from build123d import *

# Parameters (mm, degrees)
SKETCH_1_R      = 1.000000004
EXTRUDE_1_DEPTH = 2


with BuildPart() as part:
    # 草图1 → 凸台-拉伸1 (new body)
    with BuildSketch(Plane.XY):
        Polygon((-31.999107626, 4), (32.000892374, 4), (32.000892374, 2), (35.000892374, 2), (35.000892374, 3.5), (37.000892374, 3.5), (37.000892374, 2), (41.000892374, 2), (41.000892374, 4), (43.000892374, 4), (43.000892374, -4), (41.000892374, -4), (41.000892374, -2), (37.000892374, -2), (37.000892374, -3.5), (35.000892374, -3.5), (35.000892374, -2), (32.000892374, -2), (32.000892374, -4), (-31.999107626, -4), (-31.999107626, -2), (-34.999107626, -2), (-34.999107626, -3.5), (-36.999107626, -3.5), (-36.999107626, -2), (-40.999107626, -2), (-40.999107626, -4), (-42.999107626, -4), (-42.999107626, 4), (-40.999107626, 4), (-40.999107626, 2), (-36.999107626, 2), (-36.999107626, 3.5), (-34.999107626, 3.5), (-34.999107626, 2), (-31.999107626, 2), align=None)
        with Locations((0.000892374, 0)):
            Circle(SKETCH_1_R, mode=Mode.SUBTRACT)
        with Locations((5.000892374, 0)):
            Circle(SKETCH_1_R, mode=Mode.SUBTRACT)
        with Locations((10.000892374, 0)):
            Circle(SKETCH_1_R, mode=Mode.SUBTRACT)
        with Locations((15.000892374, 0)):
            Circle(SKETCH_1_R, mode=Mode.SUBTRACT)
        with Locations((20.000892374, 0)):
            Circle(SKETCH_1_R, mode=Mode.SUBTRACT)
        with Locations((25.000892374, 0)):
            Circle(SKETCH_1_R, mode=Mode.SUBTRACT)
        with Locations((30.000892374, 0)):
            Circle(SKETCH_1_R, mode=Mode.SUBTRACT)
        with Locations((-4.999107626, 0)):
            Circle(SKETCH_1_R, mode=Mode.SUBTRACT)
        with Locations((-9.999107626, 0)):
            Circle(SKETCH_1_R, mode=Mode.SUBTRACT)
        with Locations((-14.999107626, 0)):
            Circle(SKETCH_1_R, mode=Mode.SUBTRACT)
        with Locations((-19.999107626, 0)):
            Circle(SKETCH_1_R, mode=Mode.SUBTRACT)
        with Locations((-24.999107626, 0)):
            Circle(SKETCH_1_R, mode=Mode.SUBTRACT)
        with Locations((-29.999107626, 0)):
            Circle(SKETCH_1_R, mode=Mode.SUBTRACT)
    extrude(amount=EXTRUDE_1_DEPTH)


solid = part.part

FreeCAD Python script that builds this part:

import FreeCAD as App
import Part
import Sketcher

V = App.Vector

doc = App.newDocument("Part")
body = doc.addObject("PartDesign::Body", "Body")

# Sketch on XY plane
sketch1 = doc.addObject("Sketcher::SketchObject", "Sketch")
body.addObject(sketch1)
sketch1.AttachmentSupport = (doc.XY_Plane, [""])
sketch1.MapMode = "FlatFace"
sketch1.addGeometry([
    Part.LineSegment(V(32.000892, 4, 0), V(-31.999108, 4, 0)),  # 0
    Part.LineSegment(V(-31.999108, 4, 0), V(-31.999108, 2, 0)),  # 1
    Part.LineSegment(V(-31.999108, 2, 0), V(-34.999108, 2, 0)),  # 2
    Part.LineSegment(V(-34.999108, 2, 0), V(-34.999108, 3.5, 0)),  # 3
    Part.LineSegment(V(-34.999108, 3.5, 0), V(-36.999108, 3.5, 0)),  # 4
    Part.LineSegment(V(-36.999108, 3.5, 0), V(-36.999108, 2, 0)),  # 5
    Part.LineSegment(V(-36.999108, 2, 0), V(-40.999108, 2, 0)),  # 6
    Part.LineSegment(V(-40.999108, 2, 0), V(-40.999108, 4, 0)),  # 7
    Part.LineSegment(V(-40.999108, 4, 0), V(-42.999108, 4, 0)),  # 8
    Part.LineSegment(V(-42.999108, 4, 0), V(-42.999108, -4, 0)),  # 9
    Part.LineSegment(V(-42.999108, -4, 0), V(-40.999108, -4, 0)),  # 10
    Part.LineSegment(V(-40.999108, -4, 0), V(-40.999108, -2, 0)),  # 11
    Part.LineSegment(V(-40.999108, -2, 0), V(-36.999108, -2, 0)),  # 12
    Part.LineSegment(V(-36.999108, -2, 0), V(-36.999108, -3.5, 0)),  # 13
    Part.LineSegment(V(-36.999108, -3.5, 0), V(-34.999108, -3.5, 0)),  # 14
    Part.LineSegment(V(-34.999108, -3.5, 0), V(-34.999108, -2, 0)),  # 15
    Part.LineSegment(V(-34.999108, -2, 0), V(-31.999108, -2, 0)),  # 16
    Part.LineSegment(V(-31.999108, -2, 0), V(-31.999108, -4, 0)),  # 17
    Part.LineSegment(V(-31.999108, -4, 0), V(32.000892, -4, 0)),  # 18
    Part.LineSegment(V(32.000892, -4, 0), V(32.000892, -2, 0)),  # 19
    Part.LineSegment(V(32.000892, -2, 0), V(35.000892, -2, 0)),  # 20
    Part.LineSegment(V(35.000892, -2, 0), V(35.000892, -3.5, 0)),  # 21
    Part.LineSegment(V(35.000892, -3.5, 0), V(37.000892, -3.5, 0)),  # 22
    Part.LineSegment(V(37.000892, -3.5, 0), V(37.000892, -2, 0)),  # 23
    Part.LineSegment(V(37.000892, -2, 0), V(41.000892, -2, 0)),  # 24
    Part.LineSegment(V(41.000892, -2, 0), V(41.000892, -4, 0)),  # 25
    Part.LineSegment(V(41.000892, -4, 0), V(43.000892, -4, 0)),  # 26
    Part.LineSegment(V(43.000892, -4, 0), V(43.000892, 4, 0)),  # 27
    Part.LineSegment(V(43.000892, 4, 0), V(41.000892, 4, 0)),  # 28
    Part.LineSegment(V(41.000892, 4, 0), V(41.000892, 2, 0)),  # 29
    Part.LineSegment(V(41.000892, 2, 0), V(37.000892, 2, 0)),  # 30
    Part.LineSegment(V(37.000892, 2, 0), V(37.000892, 3.5, 0)),  # 31
    Part.LineSegment(V(37.000892, 3.5, 0), V(35.000892, 3.5, 0)),  # 32
    Part.LineSegment(V(35.000892, 3.5, 0), V(35.000892, 2, 0)),  # 33
    Part.LineSegment(V(35.000892, 2, 0), V(32.000892, 2, 0)),  # 34
    Part.LineSegment(V(32.000892, 2, 0), V(32.000892, 4, 0)),  # 35
    Part.Circle(V(30.000892, 0, 0), V(0, 0, 1), 1),  # 36
    Part.Circle(V(25.000892, 0, 0), V(0, 0, 1), 1),  # 37
    Part.Circle(V(20.000892, 0, 0), V(0, 0, 1), 1),  # 38
    Part.Circle(V(15.000892, 0, 0), V(0, 0, 1), 1),  # 39
    Part.Circle(V(10.000892, 0, 0), V(0, 0, 1), 1),  # 40
    Part.Circle(V(5.000892, 0, 0), V(0, 0, 1), 1),  # 41
    Part.Circle(V(0.000892, 0, 0), V(0, 0, 1), 1),  # 42
    Part.Circle(V(-4.999108, 0, 0), V(0, 0, 1), 1),  # 43
    Part.Circle(V(-9.999108, 0, 0), V(0, 0, 1), 1),  # 44
    Part.Circle(V(-14.999108, 0, 0), V(0, 0, 1), 1),  # 45
    Part.Circle(V(-19.999108, 0, 0), V(0, 0, 1), 1),  # 46
    Part.Circle(V(-24.999108, 0, 0), V(0, 0, 1), 1),  # 47
    Part.Circle(V(-29.999108, 0, 0), V(0, 0, 1), 1),  # 48
], False)
sketch1.addConstraint([
    Sketcher.Constraint("Coincident", 0, 2, 1, 1),
    Sketcher.Constraint("Coincident", 1, 2, 2, 1),
    Sketcher.Constraint("Coincident", 2, 2, 3, 1),
    Sketcher.Constraint("Coincident", 3, 2, 4, 1),
    Sketcher.Constraint("Coincident", 4, 2, 5, 1),
    Sketcher.Constraint("Coincident", 5, 2, 6, 1),
    Sketcher.Constraint("Coincident", 6, 2, 7, 1),
    Sketcher.Constraint("Coincident", 7, 2, 8, 1),
    Sketcher.Constraint("Coincident", 8, 2, 9, 1),
    Sketcher.Constraint("Coincident", 9, 2, 10, 1),
    Sketcher.Constraint("Coincident", 10, 2, 11, 1),
    Sketcher.Constraint("Coincident", 11, 2, 12, 1),
    Sketcher.Constraint("Coincident", 12, 2, 13, 1),
    Sketcher.Constraint("Coincident", 13, 2, 14, 1),
    Sketcher.Constraint("Coincident", 14, 2, 15, 1),
    Sketcher.Constraint("Coincident", 15, 2, 16, 1),
    Sketcher.Constraint("Coincident", 16, 2, 17, 1),
    Sketcher.Constraint("Coincident", 17, 2, 18, 1),
    Sketcher.Constraint("Coincident", 18, 2, 19, 1),
    Sketcher.Constraint("Coincident", 19, 2, 20, 1),
    Sketcher.Constraint("Coincident", 20, 2, 21, 1),
    Sketcher.Constraint("Coincident", 21, 2, 22, 1),
    Sketcher.Constraint("Coincident", 22, 2, 23, 1),
    Sketcher.Constraint("Coincident", 23, 2, 24, 1),
    Sketcher.Constraint("Coincident", 24, 2, 25, 1),
    Sketcher.Constraint("Coincident", 25, 2, 26, 1),
    Sketcher.Constraint("Coincident", 26, 2, 27, 1),
    Sketcher.Constraint("Coincident", 27, 2, 28, 1),
    Sketcher.Constraint("Coincident", 28, 2, 29, 1),
    Sketcher.Constraint("Coincident", 29, 2, 30, 1),
    Sketcher.Constraint("Coincident", 30, 2, 31, 1),
    Sketcher.Constraint("Coincident", 31, 2, 32, 1),
    Sketcher.Constraint("Coincident", 32, 2, 33, 1),
    Sketcher.Constraint("Coincident", 33, 2, 34, 1),
    Sketcher.Constraint("Coincident", 34, 2, 35, 1),
    Sketcher.Constraint("Coincident", 35, 2, 0, 1),
    Sketcher.Constraint("Horizontal", 0),
    Sketcher.Constraint("Vertical", 1),
    Sketcher.Constraint("Horizontal", 2),
    Sketcher.Constraint("Vertical", 3),
    Sketcher.Constraint("Horizontal", 4),
    Sketcher.Constraint("Vertical", 5),
    Sketcher.Constraint("Horizontal", 6),
    Sketcher.Constraint("Vertical", 7),
    Sketcher.Constraint("Horizontal", 8),
    Sketcher.Constraint("Vertical", 9),
    Sketcher.Constraint("Horizontal", 10),
    Sketcher.Constraint("Vertical", 11),
    Sketcher.Constraint("Horizontal", 12),
    Sketcher.Constraint("Vertical", 13),
    Sketcher.Constraint("Horizontal", 14),
    Sketcher.Constraint("Vertical", 15),
    Sketcher.Constraint("Horizontal", 16),
    Sketcher.Constraint("Vertical", 17),
    Sketcher.Constraint("Horizontal", 18),
    Sketcher.Constraint("Vertical", 19),
    Sketcher.Constraint("Horizontal", 20),
    Sketcher.Constraint("Vertical", 21),
    Sketcher.Constraint("Horizontal", 22),
    Sketcher.Constraint("Vertical", 23),
    Sketcher.Constraint("Horizontal", 24),
    Sketcher.Constraint("Vertical", 25),
    Sketcher.Constraint("Horizontal", 26),
    Sketcher.Constraint("Vertical", 27),
    Sketcher.Constraint("Horizontal", 28),
    Sketcher.Constraint("Vertical", 29),
    Sketcher.Constraint("Horizontal", 30),
    Sketcher.Constraint("Vertical", 31),
    Sketcher.Constraint("Horizontal", 32),
    Sketcher.Constraint("Vertical", 33),
    Sketcher.Constraint("Horizontal", 34),
    Sketcher.Constraint("Vertical", 35),
    Sketcher.Constraint("Equal", 36, 37),
    Sketcher.Constraint("Equal", 37, 38),
    Sketcher.Constraint("Equal", 38, 39),
    Sketcher.Constraint("Equal", 39, 40),
    Sketcher.Constraint("Equal", 40, 41),
    Sketcher.Constraint("Equal", 41, 42),
    Sketcher.Constraint("Equal", 42, 43),
    Sketcher.Constraint("Equal", 43, 44),
    Sketcher.Constraint("Equal", 44, 45),
    Sketcher.Constraint("Equal", 45, 46),
    Sketcher.Constraint("Equal", 46, 47),
    Sketcher.Constraint("Equal", 47, 48),
    Sketcher.Constraint("Symmetric", 7, 2, 10, 2, -1),
    Sketcher.Constraint("Symmetric", 5, 2, 12, 2, -1),
    Sketcher.Constraint("Symmetric", 3, 2, 14, 2, -1),
    Sketcher.Constraint("Symmetric", 1, 2, 16, 2, -1),
    Sketcher.Constraint("Symmetric", 25, 2, 28, 2, -1),
    Sketcher.Constraint("Symmetric", 23, 2, 30, 2, -1),
    Sketcher.Constraint("Symmetric", 21, 2, 32, 2, -1),
    Sketcher.Constraint("Symmetric", 19, 2, 34, 2, -1),
    Sketcher.Constraint("PointOnObject", 36, 3, -1),
    Sketcher.Constraint("PointOnObject", 37, 3, -1),
    Sketcher.Constraint("PointOnObject", 38, 3, -1),
    Sketcher.Constraint("PointOnObject", 39, 3, -1),
    Sketcher.Constraint("PointOnObject", 40, 3, -1),
    Sketcher.Constraint("PointOnObject", 41, 3, -1),
    Sketcher.Constraint("PointOnObject", 42, 3, -1),
    Sketcher.Constraint("PointOnObject", 43, 3, -1),
    Sketcher.Constraint("PointOnObject", 44, 3, -1),
    Sketcher.Constraint("PointOnObject", 45, 3, -1),
    Sketcher.Constraint("PointOnObject", 46, 3, -1),
    Sketcher.Constraint("PointOnObject", 47, 3, -1),
    Sketcher.Constraint("PointOnObject", 48, 3, -1),
    Sketcher.Constraint("Horizontal", 2, 2, 5, 2),
    Sketcher.Constraint("Horizontal", 0, 2, 7, 2),
    Sketcher.Constraint("Horizontal", 10, 2, 17, 2),
    Sketcher.Constraint("Horizontal", 16, 2, 19, 2),
    Sketcher.Constraint("Horizontal", 14, 2, 21, 2),
    Sketcher.Constraint("Horizontal", 20, 2, 23, 2),
    Sketcher.Constraint("Horizontal", 18, 2, 25, 2),
    Sketcher.Constraint("Equal", 4, 8),
    Sketcher.Constraint("Equal", 16, 20),
    Sketcher.Constraint("Equal", 14, 22),
    Sketcher.Constraint("Equal", 12, 24),
    Sketcher.Constraint("Equal", 22, 26),
    Sketcher.Constraint("Equal", 32, 1),
    Sketcher.Constraint("Diameter", 36, 2.0),
    Sketcher.Constraint("DistanceX", 0, 2, 0, 1, 64.0),
    Sketcher.Constraint("DistanceX", 2, 2, 2, 1, 3.0),
    Sketcher.Constraint("DistanceX", 4, 2, 4, 1, 2.0),
    Sketcher.Constraint("DistanceX", 6, 2, 6, 1, 4.0),
    Sketcher.Constraint("DistanceY", 9, 2, 9, 1, 8.0),
    Sketcher.Constraint("DistanceY", 3, 1, 3, 2, 1.5),
    Sketcher.Constraint("DistanceX", 37, 3, 36, 3, 5.0),
    Sketcher.Constraint("DistanceX", 38, 3, 37, 3, 5.0),
    Sketcher.Constraint("DistanceX", 39, 3, 38, 3, 5.0),
    Sketcher.Constraint("DistanceX", 40, 3, 39, 3, 5.0),
    Sketcher.Constraint("DistanceX", 41, 3, 40, 3, 5.0),
    Sketcher.Constraint("DistanceX", 42, 3, 41, 3, 5.0),
    Sketcher.Constraint("DistanceX", 43, 3, 42, 3, 5.0),
    Sketcher.Constraint("DistanceX", 44, 3, 43, 3, 5.0),
    Sketcher.Constraint("DistanceX", 45, 3, 44, 3, 5.0),
    Sketcher.Constraint("DistanceX", 46, 3, 45, 3, 5.0),
    Sketcher.Constraint("DistanceX", 47, 3, 46, 3, 5.0),
    Sketcher.Constraint("DistanceX", 48, 3, 47, 3, 5.0),
    Sketcher.Constraint("DistanceX", 0, 2, 48, 3, 2.0),
    Sketcher.Constraint("DistanceX", -1, 1, 36, 3, 30.000892),
])
pad1 = doc.addObject("PartDesign::Pad", "Pad")
body.addObject(pad1)
pad1.Profile = sketch1
pad1.Length = 2

doc.recompute()
